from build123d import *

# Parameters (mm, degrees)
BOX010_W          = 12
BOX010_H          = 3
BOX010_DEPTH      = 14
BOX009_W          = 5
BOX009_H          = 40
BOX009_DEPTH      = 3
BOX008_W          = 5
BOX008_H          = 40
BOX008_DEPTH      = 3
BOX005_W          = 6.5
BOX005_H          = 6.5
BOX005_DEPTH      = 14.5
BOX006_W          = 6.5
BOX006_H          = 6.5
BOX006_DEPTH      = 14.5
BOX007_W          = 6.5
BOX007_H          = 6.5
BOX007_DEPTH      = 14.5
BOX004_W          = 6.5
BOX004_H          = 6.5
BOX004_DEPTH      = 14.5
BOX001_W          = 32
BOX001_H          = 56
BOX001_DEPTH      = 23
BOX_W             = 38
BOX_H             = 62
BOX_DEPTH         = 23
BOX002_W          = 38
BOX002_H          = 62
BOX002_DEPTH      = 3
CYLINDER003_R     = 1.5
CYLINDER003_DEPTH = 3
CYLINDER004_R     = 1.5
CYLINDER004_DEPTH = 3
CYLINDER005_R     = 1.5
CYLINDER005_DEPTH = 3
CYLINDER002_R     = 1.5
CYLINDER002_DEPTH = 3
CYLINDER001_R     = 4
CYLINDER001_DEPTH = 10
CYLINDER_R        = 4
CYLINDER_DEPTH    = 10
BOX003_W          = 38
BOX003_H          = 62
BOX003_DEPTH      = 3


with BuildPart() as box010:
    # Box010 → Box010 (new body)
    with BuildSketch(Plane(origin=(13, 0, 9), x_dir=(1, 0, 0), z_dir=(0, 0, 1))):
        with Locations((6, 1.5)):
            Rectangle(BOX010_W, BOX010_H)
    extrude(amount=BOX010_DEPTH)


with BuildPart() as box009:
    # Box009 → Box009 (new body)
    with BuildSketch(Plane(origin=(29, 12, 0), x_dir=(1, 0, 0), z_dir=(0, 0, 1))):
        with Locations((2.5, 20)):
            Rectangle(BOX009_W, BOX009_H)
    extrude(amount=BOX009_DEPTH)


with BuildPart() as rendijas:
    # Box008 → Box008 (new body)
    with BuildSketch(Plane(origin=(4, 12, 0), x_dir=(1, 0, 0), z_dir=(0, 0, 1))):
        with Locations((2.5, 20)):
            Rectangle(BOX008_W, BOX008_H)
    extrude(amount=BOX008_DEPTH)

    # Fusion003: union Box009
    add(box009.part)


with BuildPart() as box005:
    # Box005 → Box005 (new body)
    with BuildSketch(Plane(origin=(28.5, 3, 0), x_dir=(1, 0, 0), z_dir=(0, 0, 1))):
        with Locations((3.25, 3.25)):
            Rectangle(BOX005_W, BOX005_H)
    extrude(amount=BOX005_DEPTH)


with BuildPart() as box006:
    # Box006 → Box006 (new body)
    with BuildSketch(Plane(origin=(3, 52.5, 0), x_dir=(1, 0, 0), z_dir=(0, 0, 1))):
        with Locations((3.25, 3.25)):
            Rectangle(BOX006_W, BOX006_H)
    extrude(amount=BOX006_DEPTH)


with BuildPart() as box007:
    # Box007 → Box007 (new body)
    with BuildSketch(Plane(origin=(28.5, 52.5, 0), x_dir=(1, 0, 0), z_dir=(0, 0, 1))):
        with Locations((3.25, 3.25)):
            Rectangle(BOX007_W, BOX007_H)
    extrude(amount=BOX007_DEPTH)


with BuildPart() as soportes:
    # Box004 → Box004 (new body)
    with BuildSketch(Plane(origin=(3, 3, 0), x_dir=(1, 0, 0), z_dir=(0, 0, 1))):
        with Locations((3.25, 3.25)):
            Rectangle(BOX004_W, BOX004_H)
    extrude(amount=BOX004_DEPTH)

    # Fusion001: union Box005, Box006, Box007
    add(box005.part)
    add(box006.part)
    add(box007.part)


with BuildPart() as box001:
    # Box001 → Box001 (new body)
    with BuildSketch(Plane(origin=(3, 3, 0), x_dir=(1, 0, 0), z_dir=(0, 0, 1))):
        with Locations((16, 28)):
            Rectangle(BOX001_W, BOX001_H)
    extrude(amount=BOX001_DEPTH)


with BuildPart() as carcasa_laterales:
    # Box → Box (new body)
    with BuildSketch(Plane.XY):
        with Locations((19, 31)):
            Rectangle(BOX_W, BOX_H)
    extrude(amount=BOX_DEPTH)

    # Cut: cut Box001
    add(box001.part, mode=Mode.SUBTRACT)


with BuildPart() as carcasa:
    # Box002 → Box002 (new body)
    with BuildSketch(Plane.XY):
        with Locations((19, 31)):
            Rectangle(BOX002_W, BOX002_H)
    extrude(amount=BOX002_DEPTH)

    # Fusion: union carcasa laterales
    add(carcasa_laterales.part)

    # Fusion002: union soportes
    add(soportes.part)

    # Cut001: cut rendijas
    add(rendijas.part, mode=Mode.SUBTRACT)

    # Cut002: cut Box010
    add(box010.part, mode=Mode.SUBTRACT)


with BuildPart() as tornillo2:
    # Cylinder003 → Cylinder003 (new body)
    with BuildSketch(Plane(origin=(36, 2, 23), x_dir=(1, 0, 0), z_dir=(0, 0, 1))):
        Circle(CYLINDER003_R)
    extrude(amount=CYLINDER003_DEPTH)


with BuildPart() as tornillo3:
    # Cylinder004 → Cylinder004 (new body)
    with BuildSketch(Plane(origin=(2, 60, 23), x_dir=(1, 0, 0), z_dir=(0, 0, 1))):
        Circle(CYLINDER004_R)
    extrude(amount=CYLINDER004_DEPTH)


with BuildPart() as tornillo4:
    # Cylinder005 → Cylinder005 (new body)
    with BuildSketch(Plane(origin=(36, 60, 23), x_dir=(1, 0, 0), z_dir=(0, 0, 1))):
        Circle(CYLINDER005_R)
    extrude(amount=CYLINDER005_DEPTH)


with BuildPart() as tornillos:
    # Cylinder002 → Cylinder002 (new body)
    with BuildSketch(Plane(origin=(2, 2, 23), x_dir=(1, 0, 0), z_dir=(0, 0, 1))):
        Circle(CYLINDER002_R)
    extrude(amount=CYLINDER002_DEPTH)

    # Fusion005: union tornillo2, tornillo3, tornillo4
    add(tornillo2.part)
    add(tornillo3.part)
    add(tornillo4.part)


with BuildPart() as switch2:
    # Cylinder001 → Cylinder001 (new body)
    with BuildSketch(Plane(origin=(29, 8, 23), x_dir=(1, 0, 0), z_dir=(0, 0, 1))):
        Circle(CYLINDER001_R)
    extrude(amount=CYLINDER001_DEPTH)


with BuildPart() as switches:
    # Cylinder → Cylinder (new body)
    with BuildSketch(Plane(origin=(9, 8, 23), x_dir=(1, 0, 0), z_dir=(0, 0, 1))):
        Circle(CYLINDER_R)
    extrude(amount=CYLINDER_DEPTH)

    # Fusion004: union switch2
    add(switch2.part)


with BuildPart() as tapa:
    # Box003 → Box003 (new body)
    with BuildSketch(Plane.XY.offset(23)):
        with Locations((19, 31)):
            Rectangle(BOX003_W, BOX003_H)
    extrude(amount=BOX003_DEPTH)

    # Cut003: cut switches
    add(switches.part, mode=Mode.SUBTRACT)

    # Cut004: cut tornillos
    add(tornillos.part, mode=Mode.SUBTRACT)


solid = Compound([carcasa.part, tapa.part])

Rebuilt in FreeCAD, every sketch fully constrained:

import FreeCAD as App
import Part
import Sketcher

V = App.Vector

doc = App.newDocument("Part")
params = doc.addObject("Spreadsheet::Sheet", "Params")
for row, (alias, value) in enumerate([
    ("sketch1_width", "12 mm"),
    ("sketch1_height", "3 mm"),
    ("pad1_length", "14 mm"),
    ("sketch2_width", "5 mm"),
    ("sketch2_height", "40 mm"),
    ("pad2_length", "3 mm"),
    ("sketch3_width", "5 mm"),
    ("sketch3_height", "40 mm"),
    ("pad3_length", "3 mm"),
    ("sketch4_width", "6.5 mm"),
    ("pad4_length", "14.5 mm"),
    ("sketch5_width", "6.5 mm"),
    ("pad5_length", "14.5 mm"),
    ("sketch6_width", "6.5 mm"),
    ("pad6_length", "14.5 mm"),
    ("sketch7_width", "6.5 mm"),
    ("pad7_length", "14.5 mm"),
    ("sketch8_width", "32 mm"),
    ("sketch8_height", "56 mm"),
    ("pad8_length", "23 mm"),
    ("sketch9_width", "38 mm"),
    ("sketch9_height", "62 mm"),
    ("pad9_length", "23 mm"),
    ("sketch10_width", "38 mm"),
    ("sketch10_height", "62 mm"),
    ("pad10_length", "3 mm"),
    ("sketch11_diameter", "3 mm"),
    ("pad11_length", "3 mm"),
    ("sketch12_diameter", "3 mm"),
    ("pad12_length", "3 mm"),
    ("sketch13_diameter", "3 mm"),
    ("pad13_length", "3 mm"),
    ("sketch14_diameter", "3 mm"),
    ("pad14_length", "3 mm"),
    ("sketch15_diameter", "8 mm"),
    ("pad15_length", "10 mm"),
    ("sketch16_diameter", "8 mm"),
    ("pad16_length", "10 mm"),
    ("sketch17_width", "38 mm"),
    ("sketch17_height", "62 mm"),
    ("pad17_length", "3 mm"),
], start=1):
    params.set(f"A{row}", alias)
    params.set(f"B{row}", "=" + value)
    params.setAlias(f"B{row}", alias)

body = doc.addObject("PartDesign::Body", "Body")

sketch1 = body.newObject("Sketcher::SketchObject", "Sketch")
sketch1.AttachmentSupport = (doc.getObject("XY_Plane"), [""])
sketch1.MapMode = "FlatFace"
sketch1.AttachmentOffset = App.Placement(V(0, 0, 9), App.Rotation())
sketch1.addGeometry(Part.LineSegment(V(13, 3, 0), V(13, 0, 0)), False)
sketch1.addGeometry(Part.LineSegment(V(13, 0, 0), V(25, 0, 0)), False)
sketch1.addGeometry(Part.LineSegment(V(25, 0, 0), V(25, 3, 0)), False)
sketch1.addGeometry(Part.LineSegment(V(25, 3, 0), V(13, 3, 0)), False)
sketch1.addConstraint(Sketcher.Constraint("Coincident", 0, 2, 1, 1))
sketch1.addConstraint(Sketcher.Constraint("Coincident", 1, 2, 2, 1))
sketch1.addConstraint(Sketcher.Constraint("Coincident", 2, 2, 3, 1))
sketch1.addConstraint(Sketcher.Constraint("Coincident", 3, 2, 0, 1))
sketch1.addConstraint(Sketcher.Constraint("Vertical", 0))
sketch1.addConstraint(Sketcher.Constraint("Horizontal", 1))
sketch1.addConstraint(Sketcher.Constraint("Vertical", 2))
sketch1.addConstraint(Sketcher.Constraint("Horizontal", 3))
sketch1.addConstraint(Sketcher.Constraint("PointOnObject", 0, 2, -1))
sketch1.addConstraint(Sketcher.Constraint("DistanceX", 1, 1, 1, 2, 12.0))
sketch1.addConstraint(Sketcher.Constraint("DistanceY", 0, 2, 0, 1, 3.0))
sketch1.addConstraint(Sketcher.Constraint("DistanceX", -1, 1, 0, 2, 13.0))
sketch1.setExpression("Constraints[9]", "Params.sketch1_width")
sketch1.setExpression("Constraints[10]", "Params.sketch1_height")
pad1 = body.newObject("PartDesign::Pad", "Pad")
pad1.Profile = sketch1
pad1.setExpression("Length", "Params.pad1_length")
body2 = doc.addObject("PartDesign::Body", "Body001")

sketch2 = body2.newObject("Sketcher::SketchObject", "Sketch001")
sketch2.AttachmentSupport = (doc.getObject("XY_Plane001"), [""])
sketch2.MapMode = "FlatFace"
sketch2.addGeometry(Part.LineSegment(V(29, 52, 0), V(29, 12, 0)), False)
sketch2.addGeometry(Part.LineSegment(V(29, 12, 0), V(34, 12, 0)), False)
sketch2.addGeometry(Part.LineSegment(V(34, 12, 0), V(34, 52, 0)), False)
sketch2.addGeometry(Part.LineSegment(V(34, 52, 0), V(29, 52, 0)), False)
sketch2.addConstraint(Sketcher.Constraint("Coincident", 0, 2, 1, 1))
sketch2.addConstraint(Sketcher.Constraint("Coincident", 1, 2, 2, 1))
sketch2.addConstraint(Sketcher.Constraint("Coincident", 2, 2, 3, 1))
sketch2.addConstraint(Sketcher.Constraint("Coincident", 3, 2, 0, 1))
sketch2.addConstraint(Sketcher.Constraint("Vertical", 0))
sketch2.addConstraint(Sketcher.Constraint("Horizontal", 1))
sketch2.addConstraint(Sketcher.Constraint("Vertical", 2))
sketch2.addConstraint(Sketcher.Constraint("Horizontal", 3))
sketch2.addConstraint(Sketcher.Constraint("DistanceX", 1, 1, 1, 2, 5.0))
sketch2.addConstraint(Sketcher.Constraint("DistanceY", 0, 2, 0, 1, 40.0))
sketch2.addConstraint(Sketcher.Constraint("DistanceX", -1, 1, 0, 2, 29.0))
sketch2.addConstraint(Sketcher.Constraint("DistanceY", -1, 1, 0, 2, 12.0))
sketch2.setExpression("Constraints[8]", "Params.sketch2_width")
sketch2.setExpression("Constraints[9]", "Params.sketch2_height")
pad2 = body2.newObject("PartDesign::Pad", "Pad001")
pad2.Profile = sketch2
pad2.setExpression("Length", "Params.pad2_length")
body3 = doc.addObject("PartDesign::Body", "Body002")
body3.AllowCompound = True

sketch3 = body3.newObject("Sketcher::SketchObject", "Sketch002")
sketch3.AttachmentSupport = (doc.getObject("XY_Plane002"), [""])
sketch3.MapMode = "FlatFace"
sketch3.addGeometry(Part.LineSegment(V(4, 52, 0), V(4, 12, 0)), False)
sketch3.addGeometry(Part.LineSegment(V(4, 12, 0), V(9, 12, 0)), False)
sketch3.addGeometry(Part.LineSegment(V(9, 12, 0), V(9, 52, 0)), False)
sketch3.addGeometry(Part.LineSegment(V(9, 52, 0), V(4, 52, 0)), False)
sketch3.addConstraint(Sketcher.Constraint("Coincident", 0, 2, 1, 1))
sketch3.addConstraint(Sketcher.Constraint("Coincident", 1, 2, 2, 1))
sketch3.addConstraint(Sketcher.Constraint("Coincident", 2, 2, 3, 1))
sketch3.addConstraint(Sketcher.Constraint("Coincident", 3, 2, 0, 1))
sketch3.addConstraint(Sketcher.Constraint("Vertical", 0))
sketch3.addConstraint(Sketcher.Constraint("Horizontal", 1))
sketch3.addConstraint(Sketcher.Constraint("Vertical", 2))
sketch3.addConstraint(Sketcher.Constraint("Horizontal", 3))
sketch3.addConstraint(Sketcher.Constraint("DistanceX", 1, 1, 1, 2, 5.0))
sketch3.addConstraint(Sketcher.Constraint("DistanceY", 0, 2, 0, 1, 40.0))
sketch3.addConstraint(Sketcher.Constraint("DistanceX", -1, 1, 0, 2, 4.0))
sketch3.addConstraint(Sketcher.Constraint("DistanceY", -1, 1, 0, 2, 12.0))
sketch3.setExpression("Constraints[8]", "Params.sketch3_width")
sketch3.setExpression("Constraints[9]", "Params.sketch3_height")
pad3 = body3.newObject("PartDesign::Pad", "Pad002")
pad3.Profile = sketch3
pad3.setExpression("Length", "Params.pad3_length")
doc.recompute()

boolean = body3.newObject("PartDesign::Boolean", "Boolean")
boolean.Type = "Fuse"
boolean.addObjects([body2])
body4 = doc.addObject("PartDesign::Body", "Body003")

sketch4 = body4.newObject("Sketcher::SketchObject", "Sketch003")
sketch4.AttachmentSupport = (doc.getObject("XY_Plane003"), [""])
sketch4.MapMode = "FlatFace"
sketch4.addGeometry(Part.LineSegment(V(28.5, 9.5, 0), V(28.5, 3, 0)), False)
sketch4.addGeometry(Part.LineSegment(V(28.5, 3, 0), V(35, 3, 0)), False)
sketch4.addGeometry(Part.LineSegment(V(35, 3, 0), V(35, 9.5, 0)), False)
sketch4.addGeometry(Part.LineSegment(V(35, 9.5, 0), V(28.5, 9.5, 0)), False)
sketch4.addConstraint(Sketcher.Constraint("Coincident", 0, 2, 1, 1))
sketch4.addConstraint(Sketcher.Constraint("Coincident", 1, 2, 2, 1))
sketch4.addConstraint(Sketcher.Constraint("Coincident", 2, 2, 3, 1))
sketch4.addConstraint(Sketcher.Constraint("Coincident", 3, 2, 0, 1))
sketch4.addConstraint(Sketcher.Constraint("Vertical", 0))
sketch4.addConstraint(Sketcher.Constraint("Horizontal", 1))
sketch4.addConstraint(Sketcher.Constraint("Vertical", 2))
sketch4.addConstraint(Sketcher.Constraint("Horizontal", 3))
sketch4.addConstraint(Sketcher.Constraint("Equal", 3, 0))
sketch4.addConstraint(Sketcher.Constraint("DistanceX", 1, 1, 1, 2, 6.5))
sketch4.addConstraint(Sketcher.Constraint("DistanceY", -1, 1, 0, 2, 3.0))
sketch4.addConstraint(Sketcher.Constraint("DistanceX", -1, 1, 1, 2, 35.0))
sketch4.setExpression("Constraints[9]", "Params.sketch4_width")
pad4 = body4.newObject("PartDesign::Pad", "Pad003")
pad4.Profile = sketch4
pad4.setExpression("Length", "Params.pad4_length")
body5 = doc.addObject("PartDesign::Body", "Body004")

sketch5 = body5.newObject("Sketcher::SketchObject", "Sketch004")
sketch5.AttachmentSupport = (doc.getObject("XY_Plane004"), [""])
sketch5.MapMode = "FlatFace"
sketch5.addGeometry(Part.LineSegment(V(3, 59, 0), V(3, 52.5, 0)), False)
sketch5.addGeometry(Part.LineSegment(V(3, 52.5, 0), V(9.5, 52.5, 0)), False)
sketch5.addGeometry(Part.LineSegment(V(9.5, 52.5, 0), V(9.5, 59, 0)), False)
sketch5.addGeometry(Part.LineSegment(V(9.5, 59, 0), V(3, 59, 0)), False)
sketch5.addConstraint(Sketcher.Constraint("Coincident", 0, 2, 1, 1))
sketch5.addConstraint(Sketcher.Constraint("Coincident", 1, 2, 2, 1))
sketch5.addConstraint(Sketcher.Constraint("Coincident", 2, 2, 3, 1))
sketch5.addConstraint(Sketcher.Constraint("Coincident", 3, 2, 0, 1))
sketch5.addConstraint(Sketcher.Constraint("Vertical", 0))
sketch5.addConstraint(Sketcher.Constraint("Horizontal", 1))
sketch5.addConstraint(Sketcher.Constraint("Vertical", 2))
sketch5.addConstraint(Sketcher.Constraint("Horizontal", 3))
sketch5.addConstraint(Sketcher.Constraint("Equal", 3, 0))
sketch5.addConstraint(Sketcher.Constraint("DistanceX", 1, 1, 1, 2, 6.5))
sketch5.addConstraint(Sketcher.Constraint("DistanceX", -1, 1, 0, 2, 3.0))
sketch5.addConstraint(Sketcher.Constraint("DistanceY", -1, 1, 2, 2, 59.0))
sketch5.setExpression("Constraints[9]", "Params.sketch5_width")
pad5 = body5.newObject("PartDesign::Pad", "Pad004")
pad5.Profile = sketch5
pad5.setExpression("Length", "Params.pad5_length")
body6 = doc.addObject("PartDesign::Body", "Body005")

sketch6 = body6.newObject("Sketcher::SketchObject", "Sketch005")
sketch6.AttachmentSupport = (doc.getObject("XY_Plane005"), [""])
sketch6.MapMode = "FlatFace"
sketch6.addGeometry(Part.LineSegment(V(28.5, 59, 0), V(28.5, 52.5, 0)), False)
sketch6.addGeometry(Part.LineSegment(V(28.5, 52.5, 0), V(35, 52.5, 0)), False)
sketch6.addGeometry(Part.LineSegment(V(35, 52.5, 0), V(35, 59, 0)), False)
sketch6.addGeometry(Part.LineSegment(V(35, 59, 0), V(28.5, 59, 0)), False)
sketch6.addConstraint(Sketcher.Constraint("Coincident", 0, 2, 1, 1))
sketch6.addConstraint(Sketcher.Constraint("Coincident", 1, 2, 2, 1))
sketch6.addConstraint(Sketcher.Constraint("Coincident", 2, 2, 3, 1))
sketch6.addConstraint(Sketcher.Constraint("Coincident", 3, 2, 0, 1))
sketch6.addConstraint(Sketcher.Constraint("Vertical", 0))
sketch6.addConstraint(Sketcher.Constraint("Horizontal", 1))
sketch6.addConstraint(Sketcher.Constraint("Vertical", 2))
sketch6.addConstraint(Sketcher.Constraint("Horizontal", 3))
sketch6.addConstraint(Sketcher.Constraint("Equal", 3, 0))
sketch6.addConstraint(Sketcher.Constraint("DistanceX", 1, 1, 1, 2, 6.5))
sketch6.addConstraint(Sketcher.Constraint("DistanceX", -1, 1, 1, 2, 35.0))
sketch6.addConstraint(Sketcher.Constraint("DistanceY", -1, 1, 2, 2, 59.0))
sketch6.setExpression("Constraints[9]", "Params.sketch6_width")
pad6 = body6.newObject("PartDesign::Pad", "Pad005")
pad6.Profile = sketch6
pad6.setExpression("Length", "Params.pad6_length")
body7 = doc.addObject("PartDesign::Body", "Body006")
body7.AllowCompound = True

sketch7 = body7.newObject("Sketcher::SketchObject", "Sketch006")
sketch7.AttachmentSupport = (doc.getObject("XY_Plane006"), [""])
sketch7.MapMode = "FlatFace"
sketch7.addGeometry(Part.LineSegment(V(3, 9.5, 0), V(3, 3, 0)), False)
sketch7.addGeometry(Part.LineSegment(V(3, 3, 0), V(9.5, 3, 0)), False)
sketch7.addGeometry(Part.LineSegment(V(9.5, 3, 0), V(9.5, 9.5, 0)), False)
sketch7.addGeometry(Part.LineSegment(V(9.5, 9.5, 0), V(3, 9.5, 0)), False)
sketch7.addConstraint(Sketcher.Constraint("Coincident", 0, 2, 1, 1))
sketch7.addConstraint(Sketcher.Constraint("Coincident", 1, 2, 2, 1))
sketch7.addConstraint(Sketcher.Constraint("Coincident", 2, 2, 3, 1))
sketch7.addConstraint(Sketcher.Constraint("Coincident", 3, 2, 0, 1))
sketch7.addConstraint(Sketcher.Constraint("Vertical", 0))
sketch7.addConstraint(Sketcher.Constraint("Horizontal", 1))
sketch7.addConstraint(Sketcher.Constraint("Vertical", 2))
sketch7.addConstraint(Sketcher.Constraint("Horizontal", 3))
sketch7.addConstraint(Sketcher.Constraint("Equal", 3, 0))
sketch7.addConstraint(Sketcher.Constraint("DistanceX", 1, 1, 1, 2, 6.5))
sketch7.addConstraint(Sketcher.Constraint("DistanceX", -1, 1, 0, 2, 3.0))
sketch7.addConstraint(Sketcher.Constraint("DistanceY", -1, 1, 0, 2, 3.0))
sketch7.setExpression("Constraints[9]", "Params.sketch7_width")
pad7 = body7.newObject("PartDesign::Pad", "Pad006")
pad7.Profile = sketch7
pad7.setExpression("Length", "Params.pad7_length")
doc.recompute()

boolean2 = body7.newObject("PartDesign::Boolean", "Boolean001")
boolean2.Type = "Fuse"
boolean2.addObjects([body4])
doc.recompute()

boolean3 = body7.newObject("PartDesign::Boolean", "Boolean002")
boolean3.Type = "Fuse"
boolean3.addObjects([body5])
doc.recompute()

boolean4 = body7.newObject("PartDesign::Boolean", "Boolean003")
boolean4.Type = "Fuse"
boolean4.addObjects([body6])
body8 = doc.addObject("PartDesign::Body", "Body007")

sketch8 = body8.newObject("Sketcher::SketchObject", "Sketch007")
sketch8.AttachmentSupport = (doc.getObject("XY_Plane007"), [""])
sketch8.MapMode = "FlatFace"
sketch8.addGeometry(Part.LineSegment(V(3, 59, 0), V(3, 3, 0)), False)
sketch8.addGeometry(Part.LineSegment(V(3, 3, 0), V(35, 3, 0)), False)
sketch8.addGeometry(Part.LineSegment(V(35, 3, 0), V(35, 59, 0)), False)
sketch8.addGeometry(Part.LineSegment(V(35, 59, 0), V(3, 59, 0)), False)
sketch8.addConstraint(Sketcher.Constraint("Coincident", 0, 2, 1, 1))
sketch8.addConstraint(Sketcher.Constraint("Coincident", 1, 2, 2, 1))
sketch8.addConstraint(Sketcher.Constraint("Coincident", 2, 2, 3, 1))
sketch8.addConstraint(Sketcher.Constraint("Coincident", 3, 2, 0, 1))
sketch8.addConstraint(Sketcher.Constraint("Vertical", 0))
sketch8.addConstraint(Sketcher.Constraint("Horizontal", 1))
sketch8.addConstraint(Sketcher.Constraint("Vertical", 2))
sketch8.addConstraint(Sketcher.Constraint("Horizontal", 3))
sketch8.addConstraint(Sketcher.Constraint("DistanceX", 1, 1, 1, 2, 32.0))
sketch8.addConstraint(Sketcher.Constraint("DistanceY", 0, 2, 0, 1, 56.0))
sketch8.addConstraint(Sketcher.Constraint("DistanceX", -1, 1, 0, 2, 3.0))
sketch8.addConstraint(Sketcher.Constraint("DistanceY", -1, 1, 0, 2, 3.0))
sketch8.setExpression("Constraints[8]", "Params.sketch8_width")
sketch8.setExpression("Constraints[9]", "Params.sketch8_height")
pad8 = body8.newObject("PartDesign::Pad", "Pad007")
pad8.Profile = sketch8
pad8.setExpression("Length", "Params.pad8_length")
body9 = doc.addObject("PartDesign::Body", "Body008")

sketch9 = body9.newObject("Sketcher::SketchObject", "Sketch008")
sketch9.AttachmentSupport = (doc.getObject("XY_Plane008"), [""])
sketch9.MapMode = "FlatFace"
sketch9.addGeometry(Part.LineSegment(V(0, 62, 0), V(0, 0, 0)), False)
sketch9.addGeometry(Part.LineSegment(V(0, 0, 0), V(38, 0, 0)), False)
sketch9.addGeometry(Part.LineSegment(V(38, 0, 0), V(38, 62, 0)), False)
sketch9.addGeometry(Part.LineSegment(V(38, 62, 0), V(0, 62, 0)), False)
sketch9.addConstraint(Sketcher.Constraint("Coincident", 0, 2, 1, 1))
sketch9.addConstraint(Sketcher.Constraint("Coincident", 1, 2, 2, 1))
sketch9.addConstraint(Sketcher.Constraint("Coincident", 2, 2, 3, 1))
sketch9.addConstraint(Sketcher.Constraint("Coincident", 3, 2, 0, 1))
sketch9.addConstraint(Sketcher.Constraint("Vertical", 0))
sketch9.addConstraint(Sketcher.Constraint("Horizontal", 1))
sketch9.addConstraint(Sketcher.Constraint("Vertical", 2))
sketch9.addConstraint(Sketcher.Constraint("Horizontal", 3))
sketch9.addConstraint(Sketcher.Constraint("Coincident", 0, 2, -1, 1))
sketch9.addConstraint(Sketcher.Constraint("DistanceX", 1, 1, 1, 2, 38.0))
sketch9.addConstraint(Sketcher.Constraint("DistanceY", 0, 2, 0, 1, 62.0))
sketch9.setExpression("Constraints[9]", "Params.sketch9_width")
sketch9.setExpression("Constraints[10]", "Params.sketch9_height")
pad9 = body9.newObject("PartDesign::Pad", "Pad008")
pad9.Profile = sketch9
pad9.setExpression("Length", "Params.pad9_length")
doc.recompute()

boolean5 = body9.newObject("PartDesign::Boolean", "Boolean004")
boolean5.Type = "Cut"
boolean5.addObjects([body8])
body10 = doc.addObject("PartDesign::Body", "Body009")

sketch10 = body10.newObject("Sketcher::SketchObject", "Sketch009")
sketch10.AttachmentSupport = (doc.getObject("XY_Plane009"), [""])
sketch10.MapMode = "FlatFace"
sketch10.addGeometry(Part.LineSegment(V(0, 62, 0), V(0, 0, 0)), False)
sketch10.addGeometry(Part.LineSegment(V(0, 0, 0), V(38, 0, 0)), False)
sketch10.addGeometry(Part.LineSegment(V(38, 0, 0), V(38, 62, 0)), False)
sketch10.addGeometry(Part.LineSegment(V(38, 62, 0), V(0, 62, 0)), False)
sketch10.addConstraint(Sketcher.Constraint("Coincident", 0, 2, 1, 1))
sketch10.addConstraint(Sketcher.Constraint("Coincident", 1, 2, 2, 1))
sketch10.addConstraint(Sketcher.Constraint("Coincident", 2, 2, 3, 1))
sketch10.addConstraint(Sketcher.Constraint("Coincident", 3, 2, 0, 1))
sketch10.addConstraint(Sketcher.Constraint("Vertical", 0))
sketch10.addConstraint(Sketcher.Constraint("Horizontal", 1))
sketch10.addConstraint(Sketcher.Constraint("Vertical", 2))
sketch10.addConstraint(Sketcher.Constraint("Horizontal", 3))
sketch10.addConstraint(Sketcher.Constraint("Coincident", 0, 2, -1, 1))
sketch10.addConstraint(Sketcher.Constraint("DistanceX", 1, 1, 1, 2, 38.0))
sketch10.addConstraint(Sketcher.Constraint("DistanceY", 0, 2, 0, 1, 62.0))
sketch10.setExpression("Constraints[9]", "Params.sketch10_width")
sketch10.setExpression("Constraints[10]", "Params.sketch10_height")
pad10 = body10.newObject("PartDesign::Pad", "Pad009")
pad10.Profile = sketch10
pad10.setExpression("Length", "Params.pad10_length")
doc.recompute()

boolean6 = body10.newObject("PartDesign::Boolean", "Boolean005")
boolean6.Type = "Fuse"
boolean6.addObjects([body9])
doc.recompute()

boolean7 = body10.newObject("PartDesign::Boolean", "Boolean006")
boolean7.Type = "Fuse"
boolean7.addObjects([body7])
doc.recompute()

boolean8 = body10.newObject("PartDesign::Boolean", "Boolean007")
boolean8.Type = "Cut"
boolean8.addObjects([body3])
doc.recompute()

boolean9 = body10.newObject("PartDesign::Boolean", "Boolean008")
boolean9.Type = "Cut"
boolean9.addObjects([body])
body11 = doc.addObject("PartDesign::Body", "Body010")

sketch11 = body11.newObject("Sketcher::SketchObject", "Sketch010")
sketch11.AttachmentSupport = (doc.getObject("XY_Plane010"), [""])
sketch11.MapMode = "FlatFace"
sketch11.AttachmentOffset = App.Placement(V(0, 0, 23), App.Rotation())
sketch11.addGeometry(Part.Circle(V(36, 2, 0), V(0, 0, 1), 1.5), False)
sketch11.addConstraint(Sketcher.Constraint("Diameter", 0, 3.0))
sketch11.addConstraint(Sketcher.Constraint("DistanceX", -1, 1, 0, 3, 36.0))
sketch11.addConstraint(Sketcher.Constraint("DistanceY", -1, 1, 0, 3, 2.0))
sketch11.setExpression("Constraints[0]", "Params.sketch11_diameter")
pad11 = body11.newObject("PartDesign::Pad", "Pad010")
pad11.Profile = sketch11
pad11.setExpression("Length", "Params.pad11_length")
body12 = doc.addObject("PartDesign::Body", "Body011")

sketch12 = body12.newObject("Sketcher::SketchObject", "Sketch011")
sketch12.AttachmentSupport = (doc.getObject("XY_Plane011"), [""])
sketch12.MapMode = "FlatFace"
sketch12.AttachmentOffset = App.Placement(V(0, 0, 23), App.Rotation())
sketch12.addGeometry(Part.Circle(V(2, 60, 0), V(0, 0, 1), 1.5), False)
sketch12.addConstraint(Sketcher.Constraint("Diameter", 0, 3.0))
sketch12.addConstraint(Sketcher.Constraint("DistanceX", -1, 1, 0, 3, 2.0))
sketch12.addConstraint(Sketcher.Constraint("DistanceY", -1, 1, 0, 3, 60.0))
sketch12.setExpression("Constraints[0]", "Params.sketch12_diameter")
pad12 = body12.newObject("PartDesign::Pad", "Pad011")
pad12.Profile = sketch12
pad12.setExpression("Length", "Params.pad12_length")
body13 = doc.addObject("PartDesign::Body", "Body012")

sketch13 = body13.newObject("Sketcher::SketchObject", "Sketch012")
sketch13.AttachmentSupport = (doc.getObject("XY_Plane012"), [""])
sketch13.MapMode = "FlatFace"
sketch13.AttachmentOffset = App.Placement(V(0, 0, 23), App.Rotation())
sketch13.addGeometry(Part.Circle(V(36, 60, 0), V(0, 0, 1), 1.5), False)
sketch13.addConstraint(Sketcher.Constraint("Diameter", 0, 3.0))
sketch13.addConstraint(Sketcher.Constraint("DistanceX", -1, 1, 0, 3, 36.0))
sketch13.addConstraint(Sketcher.Constraint("DistanceY", -1, 1, 0, 3, 60.0))
sketch13.setExpression("Constraints[0]", "Params.sketch13_diameter")
pad13 = body13.newObject("PartDesign::Pad", "Pad012")
pad13.Profile = sketch13
pad13.setExpression("Length", "Params.pad13_length")
body14 = doc.addObject("PartDesign::Body", "Body013")
body14.AllowCompound = True

sketch14 = body14.newObject("Sketcher::SketchObject", "Sketch013")
sketch14.AttachmentSupport = (doc.getObject("XY_Plane013"), [""])
sketch14.MapMode = "FlatFace"
sketch14.AttachmentOffset = App.Placement(V(0, 0, 23), App.Rotation())
sketch14.addGeometry(Part.Circle(V(2, 2, 0), V(0, 0, 1), 1.5), False)
sketch14.addConstraint(Sketcher.Constraint("Diameter", 0, 3.0))
sketch14.addConstraint(Sketcher.Constraint("DistanceX", -1, 1, 0, 3, 2.0))
sketch14.addConstraint(Sketcher.Constraint("DistanceY", -1, 1, 0, 3, 2.0))
sketch14.setExpression("Constraints[0]", "Params.sketch14_diameter")
pad14 = body14.newObject("PartDesign::Pad", "Pad013")
pad14.Profile = sketch14
pad14.setExpression("Length", "Params.pad14_length")
doc.recompute()

boolean10 = body14.newObject("PartDesign::Boolean", "Boolean009")
boolean10.Type = "Fuse"
boolean10.addObjects([body11])
doc.recompute()

boolean11 = body14.newObject("PartDesign::Boolean", "Boolean010")
boolean11.Type = "Fuse"
boolean11.addObjects([body12])
doc.recompute()

boolean12 = body14.newObject("PartDesign::Boolean", "Boolean011")
boolean12.Type = "Fuse"
boolean12.addObjects([body13])
body15 = doc.addObject("PartDesign::Body", "Body014")

sketch15 = body15.newObject("Sketcher::SketchObject", "Sketch014")
sketch15.AttachmentSupport = (doc.getObject("XY_Plane014"), [""])
sketch15.MapMode = "FlatFace"
sketch15.AttachmentOffset = App.Placement(V(0, 0, 23), App.Rotation())
sketch15.addGeometry(Part.Circle(V(29, 8, 0), V(0, 0, 1), 4), False)
sketch15.addConstraint(Sketcher.Constraint("Diameter", 0, 8.0))
sketch15.addConstraint(Sketcher.Constraint("DistanceX", -1, 1, 0, 3, 29.0))
sketch15.addConstraint(Sketcher.Constraint("DistanceY", -1, 1, 0, 3, 8.0))
sketch15.setExpression("Constraints[0]", "Params.sketch15_diameter")
pad15 = body15.newObject("PartDesign::Pad", "Pad014")
pad15.Profile = sketch15
pad15.setExpression("Length", "Params.pad15_length")
body16 = doc.addObject("PartDesign::Body", "Body015")
body16.AllowCompound = True

sketch16 = body16.newObject("Sketcher::SketchObject", "Sketch015")
sketch16.AttachmentSupport = (doc.getObject("XY_Plane015"), [""])
sketch16.MapMode = "FlatFace"
sketch16.AttachmentOffset = App.Placement(V(0, 0, 23), App.Rotation())
sketch16.addGeometry(Part.Circle(V(9, 8, 0), V(0, 0, 1), 4), False)
sketch16.addConstraint(Sketcher.Constraint("Diameter", 0, 8.0))
sketch16.addConstraint(Sketcher.Constraint("DistanceX", -1, 1, 0, 3, 9.0))
sketch16.addConstraint(Sketcher.Constraint("DistanceY", -1, 1, 0, 3, 8.0))
sketch16.setExpression("Constraints[0]", "Params.sketch16_diameter")
pad16 = body16.newObject("PartDesign::Pad", "Pad015")
pad16.Profile = sketch16
pad16.setExpression("Length", "Params.pad16_length")
doc.recompute()

boolean13 = body16.newObject("PartDesign::Boolean", "Boolean012")
boolean13.Type = "Fuse"
boolean13.addObjects([body15])
body17 = doc.addObject("PartDesign::Body", "Body016")

sketch17 = body17.newObject("Sketcher::SketchObject", "Sketch016")
sketch17.AttachmentSupport = (doc.getObject("XY_Plane016"), [""])
sketch17.MapMode = "FlatFace"
sketch17.AttachmentOffset = App.Placement(V(0, 0, 23), App.Rotation())
sketch17.addGeometry(Part.LineSegment(V(0, 62, 0), V(0, 0, 0)), False)
sketch17.addGeometry(Part.LineSegment(V(0, 0, 0), V(38, 0, 0)), False)
sketch17.addGeometry(Part.LineSegment(V(38, 0, 0), V(38, 62, 0)), False)
sketch17.addGeometry(Part.LineSegment(V(38, 62, 0), V(0, 62, 0)), False)
sketch17.addConstraint(Sketcher.Constraint("Coincident", 0, 2, 1, 1))
sketch17.addConstraint(Sketcher.Constraint("Coincident", 1, 2, 2, 1))
sketch17.addConstraint(Sketcher.Constraint("Coincident", 2, 2, 3, 1))
sketch17.addConstraint(Sketcher.Constraint("Coincident", 3, 2, 0, 1))
sketch17.addConstraint(Sketcher.Constraint("Vertical", 0))
sketch17.addConstraint(Sketcher.Constraint("Horizontal", 1))
sketch17.addConstraint(Sketcher.Constraint("Vertical", 2))
sketch17.addConstraint(Sketcher.Constraint("Horizontal", 3))
sketch17.addConstraint(Sketcher.Constraint("Coincident", 0, 2, -1, 1))
sketch17.addConstraint(Sketcher.Constraint("DistanceX", 1, 1, 1, 2, 38.0))
sketch17.addConstraint(Sketcher.Constraint("DistanceY", 0, 2, 0, 1, 62.0))
sketch17.setExpression("Constraints[9]", "Params.sketch17_width")
sketch17.setExpression("Constraints[10]", "Params.sketch17_height")
pad17 = body17.newObject("PartDesign::Pad", "Pad016")
pad17.Profile = sketch17
pad17.setExpression("Length", "Params.pad17_length")
doc.recompute()

boolean14 = body17.newObject("PartDesign::Boolean", "Boolean013")
boolean14.Type = "Cut"
boolean14.addObjects([body16])
doc.recompute()

boolean15 = body17.newObject("PartDesign::Boolean", "Boolean014")
boolean15.Type = "Cut"
boolean15.addObjects([body14])

doc.recompute()
